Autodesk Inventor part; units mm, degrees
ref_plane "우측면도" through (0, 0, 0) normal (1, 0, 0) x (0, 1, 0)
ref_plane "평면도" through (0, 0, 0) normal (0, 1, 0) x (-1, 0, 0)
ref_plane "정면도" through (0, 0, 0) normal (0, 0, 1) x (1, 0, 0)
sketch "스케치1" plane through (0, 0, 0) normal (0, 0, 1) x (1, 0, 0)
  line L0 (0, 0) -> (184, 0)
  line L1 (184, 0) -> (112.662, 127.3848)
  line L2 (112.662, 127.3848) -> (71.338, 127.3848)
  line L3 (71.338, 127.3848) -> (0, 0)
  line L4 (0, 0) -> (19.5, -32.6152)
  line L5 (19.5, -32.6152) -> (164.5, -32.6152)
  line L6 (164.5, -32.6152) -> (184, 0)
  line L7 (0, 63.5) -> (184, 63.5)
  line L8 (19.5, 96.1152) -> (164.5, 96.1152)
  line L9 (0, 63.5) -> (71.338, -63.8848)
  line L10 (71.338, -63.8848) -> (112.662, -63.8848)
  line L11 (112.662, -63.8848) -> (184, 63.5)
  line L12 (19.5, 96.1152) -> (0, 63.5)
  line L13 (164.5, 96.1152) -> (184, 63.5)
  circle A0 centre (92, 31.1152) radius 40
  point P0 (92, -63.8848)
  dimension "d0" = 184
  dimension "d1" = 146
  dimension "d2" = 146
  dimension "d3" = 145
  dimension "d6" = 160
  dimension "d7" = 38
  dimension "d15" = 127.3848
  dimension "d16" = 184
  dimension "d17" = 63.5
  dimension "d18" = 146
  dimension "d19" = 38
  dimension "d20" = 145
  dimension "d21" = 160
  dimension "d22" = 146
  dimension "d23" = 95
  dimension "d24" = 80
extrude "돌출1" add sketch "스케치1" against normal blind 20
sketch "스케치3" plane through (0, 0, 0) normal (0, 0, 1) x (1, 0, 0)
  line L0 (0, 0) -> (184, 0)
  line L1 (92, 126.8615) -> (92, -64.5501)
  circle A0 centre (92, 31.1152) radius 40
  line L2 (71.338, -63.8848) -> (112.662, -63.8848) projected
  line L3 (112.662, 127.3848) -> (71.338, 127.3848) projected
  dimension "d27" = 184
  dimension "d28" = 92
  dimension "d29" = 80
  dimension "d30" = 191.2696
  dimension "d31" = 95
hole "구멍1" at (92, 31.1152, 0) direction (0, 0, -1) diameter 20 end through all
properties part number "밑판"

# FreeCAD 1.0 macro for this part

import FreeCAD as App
import Part
import Sketcher
Q = App.Units.Quantity

doc = App.newDocument("Part")
body = doc.addObject("PartDesign::Body", "Body")

sketch1 = body.newObject("Sketcher::SketchObject", "Sketch")
sketch1.AttachmentSupport = (doc.getObject("XY_Plane"), [""])
sketch1.MapMode = "FlatFace"
sketch1.addGeometry(Part.LineSegment(App.Vector(18, 32, 0), App.Vector(0, 0, 0)), False)
sketch1.addGeometry(Part.LineSegment(App.Vector(0, 0, 0), App.Vector(20, -33, 0)), False)
sketch1.addGeometry(Part.LineSegment(App.Vector(20, -33, 0), App.Vector(54, -33, 0)), False)
sketch1.addGeometry(Part.LineSegment(App.Vector(54, -33, 0), App.Vector(71, -64, 0)), False)
sketch1.addGeometry(Part.LineSegment(App.Vector(71, -64, 0), App.Vector(113, -64, 0)), False)
sketch1.addGeometry(Part.LineSegment(App.Vector(113, -64, 0), App.Vector(130, -33, 0)), False)
sketch1.addGeometry(Part.LineSegment(App.Vector(130, -33, 0), App.Vector(164, -33, 0)), False)
sketch1.addGeometry(Part.LineSegment(App.Vector(164, -33, 0), App.Vector(184, 0, 0)), False)
sketch1.addGeometry(Part.LineSegment(App.Vector(184, 0, 0), App.Vector(166, 32, 0)), False)
sketch1.addGeometry(Part.LineSegment(App.Vector(166, 32, 0), App.Vector(184, 64, 0)), False)
sketch1.addGeometry(Part.LineSegment(App.Vector(184, 64, 0), App.Vector(164, 96, 0)), False)
sketch1.addGeometry(Part.LineSegment(App.Vector(164, 96, 0), App.Vector(130, 96, 0)), False)
sketch1.addGeometry(Part.LineSegment(App.Vector(130, 96, 0), App.Vector(113, 127, 0)), False)
sketch1.addGeometry(Part.LineSegment(App.Vector(113, 127, 0), App.Vector(71, 127, 0)), False)
sketch1.addGeometry(Part.LineSegment(App.Vector(71, 127, 0), App.Vector(54, 96, 0)), False)
sketch1.addGeometry(Part.LineSegment(App.Vector(54, 96, 0), App.Vector(20, 96, 0)), False)
sketch1.addGeometry(Part.LineSegment(App.Vector(20, 96, 0), App.Vector(0, 64, 0)), False)
sketch1.addGeometry(Part.LineSegment(App.Vector(0, 64, 0), App.Vector(18, 32, 0)), False)
sketch1.addConstraint(Sketcher.Constraint("Coincident", 0, 2, 1, 1))
sketch1.addConstraint(Sketcher.Constraint("Coincident", 1, 2, 2, 1))
sketch1.addConstraint(Sketcher.Constraint("Coincident", 2, 2, 3, 1))
sketch1.addConstraint(Sketcher.Constraint("Coincident", 3, 2, 4, 1))
sketch1.addConstraint(Sketcher.Constraint("Coincident", 4, 2, 5, 1))
sketch1.addConstraint(Sketcher.Constraint("Coincident", 5, 2, 6, 1))
sketch1.addConstraint(Sketcher.Constraint("Coincident", 6, 2, 7, 1))
sketch1.addConstraint(Sketcher.Constraint("Coincident", 7, 2, 8, 1))
sketch1.addConstraint(Sketcher.Constraint("Coincident", 8, 2, 9, 1))
sketch1.addConstraint(Sketcher.Constraint("Coincident", 9, 2, 10, 1))
sketch1.addConstraint(Sketcher.Constraint("Coincident", 10, 2, 11, 1))
sketch1.addConstraint(Sketcher.Constraint("Coincident", 11, 2, 12, 1))
sketch1.addConstraint(Sketcher.Constraint("Coincident", 12, 2, 13, 1))
sketch1.addConstraint(Sketcher.Constraint("Coincident", 13, 2, 14, 1))
sketch1.addConstraint(Sketcher.Constraint("Coincident", 14, 2, 15, 1))
sketch1.addConstraint(Sketcher.Constraint("Coincident", 15, 2, 16, 1))
sketch1.addConstraint(Sketcher.Constraint("Coincident", 16, 2, 17, 1))
sketch1.addConstraint(Sketcher.Constraint("Coincident", 17, 2, 0, 1))
sketch1.addConstraint(Sketcher.Constraint("Horizontal", 2))
sketch1.addConstraint(Sketcher.Constraint("Horizontal", 4))
sketch1.addConstraint(Sketcher.Constraint("Horizontal", 6))
sketch1.addConstraint(Sketcher.Constraint("Horizontal", 11))
sketch1.addConstraint(Sketcher.Constraint("Horizontal", 13))
sketch1.addConstraint(Sketcher.Constraint("Horizontal", 15))
sketch1.addConstraint(Sketcher.Constraint("Coincident", 0, 2, -1, 1))
sketch1.addConstraint(Sketcher.Constraint("PointOnObject", 7, 2, -1))
sketch1.addConstraint(Sketcher.Constraint("PointOnObject", 16, 2, -2))
sketch1.addConstraint(Sketcher.Constraint("Parallel", 0, 5))
sketch1.addConstraint(Sketcher.Constraint("Parallel", 3, 8))
sketch1.addConstraint(Sketcher.Constraint("Parallel", 5, 9))
sketch1.addConstraint(Sketcher.Constraint("Parallel", 1, 10))
sketch1.addConstraint(Sketcher.Constraint("Parallel", 8, 12))
sketch1.addConstraint(Sketcher.Constraint("Parallel", 9, 14))
sketch1.addConstraint(Sketcher.Constraint("Parallel", 7, 16))
sketch1.addConstraint(Sketcher.Constraint("Parallel", 12, 17))
sketch1.addConstraint(Sketcher.Constraint("Horizontal", 2, 2, 5, 2))
sketch1.addConstraint(Sketcher.Constraint("Horizontal", 11, 2, 14, 2))
sketch1.addConstraint(Sketcher.Constraint("Horizontal", 9, 2, 16, 2))
sketch1.addConstraint(Sketcher.Constraint("Horizontal", 8, 2, 17, 2))
sketch1.addConstraint(Sketcher.Constraint("Vertical", 7, 2, 9, 2))
sketch1.addConstraint(Sketcher.Constraint("Vertical", 6, 2, 10, 2))
sketch1.addConstraint(Sketcher.Constraint("Vertical", 5, 2, 11, 2))
sketch1.addConstraint(Sketcher.Constraint("Vertical", 4, 2, 12, 2))
sketch1.addConstraint(Sketcher.Constraint("Vertical", 3, 2, 13, 2))
sketch1.addConstraint(Sketcher.Constraint("Vertical", 1, 2, 15, 2))
sketch1.addConstraint(Sketcher.Constraint("Equal", 2, 6))
sketch1.addConstraint(Sketcher.Constraint("Distance", 1, Q("38 mm")))
sketch1.addConstraint(Sketcher.Constraint("DistanceX", -1, 1, 7, 2, Q("184 mm")))
sketch1.addConstraint(Sketcher.Constraint("DistanceX", 1, 2, 6, 2, Q("145 mm")))
sketch1.addConstraint(Sketcher.Constraint("DistanceY", -1, 1, 9, 2, Q("63.5 mm")))
sketch1.addConstraint(Sketcher.Constraint("DistanceY", -1, 1, 12, 2, Q("127.3848 mm")))
sketch1.addConstraint(Sketcher.Constraint("Angle", 0, Q("-119.2497 deg")))
sketch1.addConstraint(Sketcher.Constraint("DistanceX", 4, 1, 4, 2, Q("41.324 mm")))
pad1 = body.newObject("PartDesign::Pad", "Pad")
pad1.Profile = sketch1
pad1.Length = 20
pad1.Reversed = True

sketch2 = body.newObject("Sketcher::SketchObject", "Sketch001")
sketch2.AttachmentSupport = (doc.getObject("XY_Plane"), [""])
sketch2.MapMode = "FlatFace"
sketch2.addGeometry(Part.Circle(App.Vector(92, 31, 0), App.Vector(0, 0, 1), 10), False)
sketch2.addConstraint(Sketcher.Constraint("Diameter", 0, Q("20 mm")))
sketch2.addConstraint(Sketcher.Constraint("DistanceX", -1, 1, 0, 3, Q("92 mm")))
sketch2.addConstraint(Sketcher.Constraint("DistanceY", -1, 1, 0, 3, Q("31.1152 mm")))
doc.recompute()
hole = body.newObject("PartDesign::Hole", "Hole")
hole.Profile = sketch2
hole.ThreadType = "None"
hole.Diameter = 20
hole.DepthType = "ThroughAll"

doc.recompute()
